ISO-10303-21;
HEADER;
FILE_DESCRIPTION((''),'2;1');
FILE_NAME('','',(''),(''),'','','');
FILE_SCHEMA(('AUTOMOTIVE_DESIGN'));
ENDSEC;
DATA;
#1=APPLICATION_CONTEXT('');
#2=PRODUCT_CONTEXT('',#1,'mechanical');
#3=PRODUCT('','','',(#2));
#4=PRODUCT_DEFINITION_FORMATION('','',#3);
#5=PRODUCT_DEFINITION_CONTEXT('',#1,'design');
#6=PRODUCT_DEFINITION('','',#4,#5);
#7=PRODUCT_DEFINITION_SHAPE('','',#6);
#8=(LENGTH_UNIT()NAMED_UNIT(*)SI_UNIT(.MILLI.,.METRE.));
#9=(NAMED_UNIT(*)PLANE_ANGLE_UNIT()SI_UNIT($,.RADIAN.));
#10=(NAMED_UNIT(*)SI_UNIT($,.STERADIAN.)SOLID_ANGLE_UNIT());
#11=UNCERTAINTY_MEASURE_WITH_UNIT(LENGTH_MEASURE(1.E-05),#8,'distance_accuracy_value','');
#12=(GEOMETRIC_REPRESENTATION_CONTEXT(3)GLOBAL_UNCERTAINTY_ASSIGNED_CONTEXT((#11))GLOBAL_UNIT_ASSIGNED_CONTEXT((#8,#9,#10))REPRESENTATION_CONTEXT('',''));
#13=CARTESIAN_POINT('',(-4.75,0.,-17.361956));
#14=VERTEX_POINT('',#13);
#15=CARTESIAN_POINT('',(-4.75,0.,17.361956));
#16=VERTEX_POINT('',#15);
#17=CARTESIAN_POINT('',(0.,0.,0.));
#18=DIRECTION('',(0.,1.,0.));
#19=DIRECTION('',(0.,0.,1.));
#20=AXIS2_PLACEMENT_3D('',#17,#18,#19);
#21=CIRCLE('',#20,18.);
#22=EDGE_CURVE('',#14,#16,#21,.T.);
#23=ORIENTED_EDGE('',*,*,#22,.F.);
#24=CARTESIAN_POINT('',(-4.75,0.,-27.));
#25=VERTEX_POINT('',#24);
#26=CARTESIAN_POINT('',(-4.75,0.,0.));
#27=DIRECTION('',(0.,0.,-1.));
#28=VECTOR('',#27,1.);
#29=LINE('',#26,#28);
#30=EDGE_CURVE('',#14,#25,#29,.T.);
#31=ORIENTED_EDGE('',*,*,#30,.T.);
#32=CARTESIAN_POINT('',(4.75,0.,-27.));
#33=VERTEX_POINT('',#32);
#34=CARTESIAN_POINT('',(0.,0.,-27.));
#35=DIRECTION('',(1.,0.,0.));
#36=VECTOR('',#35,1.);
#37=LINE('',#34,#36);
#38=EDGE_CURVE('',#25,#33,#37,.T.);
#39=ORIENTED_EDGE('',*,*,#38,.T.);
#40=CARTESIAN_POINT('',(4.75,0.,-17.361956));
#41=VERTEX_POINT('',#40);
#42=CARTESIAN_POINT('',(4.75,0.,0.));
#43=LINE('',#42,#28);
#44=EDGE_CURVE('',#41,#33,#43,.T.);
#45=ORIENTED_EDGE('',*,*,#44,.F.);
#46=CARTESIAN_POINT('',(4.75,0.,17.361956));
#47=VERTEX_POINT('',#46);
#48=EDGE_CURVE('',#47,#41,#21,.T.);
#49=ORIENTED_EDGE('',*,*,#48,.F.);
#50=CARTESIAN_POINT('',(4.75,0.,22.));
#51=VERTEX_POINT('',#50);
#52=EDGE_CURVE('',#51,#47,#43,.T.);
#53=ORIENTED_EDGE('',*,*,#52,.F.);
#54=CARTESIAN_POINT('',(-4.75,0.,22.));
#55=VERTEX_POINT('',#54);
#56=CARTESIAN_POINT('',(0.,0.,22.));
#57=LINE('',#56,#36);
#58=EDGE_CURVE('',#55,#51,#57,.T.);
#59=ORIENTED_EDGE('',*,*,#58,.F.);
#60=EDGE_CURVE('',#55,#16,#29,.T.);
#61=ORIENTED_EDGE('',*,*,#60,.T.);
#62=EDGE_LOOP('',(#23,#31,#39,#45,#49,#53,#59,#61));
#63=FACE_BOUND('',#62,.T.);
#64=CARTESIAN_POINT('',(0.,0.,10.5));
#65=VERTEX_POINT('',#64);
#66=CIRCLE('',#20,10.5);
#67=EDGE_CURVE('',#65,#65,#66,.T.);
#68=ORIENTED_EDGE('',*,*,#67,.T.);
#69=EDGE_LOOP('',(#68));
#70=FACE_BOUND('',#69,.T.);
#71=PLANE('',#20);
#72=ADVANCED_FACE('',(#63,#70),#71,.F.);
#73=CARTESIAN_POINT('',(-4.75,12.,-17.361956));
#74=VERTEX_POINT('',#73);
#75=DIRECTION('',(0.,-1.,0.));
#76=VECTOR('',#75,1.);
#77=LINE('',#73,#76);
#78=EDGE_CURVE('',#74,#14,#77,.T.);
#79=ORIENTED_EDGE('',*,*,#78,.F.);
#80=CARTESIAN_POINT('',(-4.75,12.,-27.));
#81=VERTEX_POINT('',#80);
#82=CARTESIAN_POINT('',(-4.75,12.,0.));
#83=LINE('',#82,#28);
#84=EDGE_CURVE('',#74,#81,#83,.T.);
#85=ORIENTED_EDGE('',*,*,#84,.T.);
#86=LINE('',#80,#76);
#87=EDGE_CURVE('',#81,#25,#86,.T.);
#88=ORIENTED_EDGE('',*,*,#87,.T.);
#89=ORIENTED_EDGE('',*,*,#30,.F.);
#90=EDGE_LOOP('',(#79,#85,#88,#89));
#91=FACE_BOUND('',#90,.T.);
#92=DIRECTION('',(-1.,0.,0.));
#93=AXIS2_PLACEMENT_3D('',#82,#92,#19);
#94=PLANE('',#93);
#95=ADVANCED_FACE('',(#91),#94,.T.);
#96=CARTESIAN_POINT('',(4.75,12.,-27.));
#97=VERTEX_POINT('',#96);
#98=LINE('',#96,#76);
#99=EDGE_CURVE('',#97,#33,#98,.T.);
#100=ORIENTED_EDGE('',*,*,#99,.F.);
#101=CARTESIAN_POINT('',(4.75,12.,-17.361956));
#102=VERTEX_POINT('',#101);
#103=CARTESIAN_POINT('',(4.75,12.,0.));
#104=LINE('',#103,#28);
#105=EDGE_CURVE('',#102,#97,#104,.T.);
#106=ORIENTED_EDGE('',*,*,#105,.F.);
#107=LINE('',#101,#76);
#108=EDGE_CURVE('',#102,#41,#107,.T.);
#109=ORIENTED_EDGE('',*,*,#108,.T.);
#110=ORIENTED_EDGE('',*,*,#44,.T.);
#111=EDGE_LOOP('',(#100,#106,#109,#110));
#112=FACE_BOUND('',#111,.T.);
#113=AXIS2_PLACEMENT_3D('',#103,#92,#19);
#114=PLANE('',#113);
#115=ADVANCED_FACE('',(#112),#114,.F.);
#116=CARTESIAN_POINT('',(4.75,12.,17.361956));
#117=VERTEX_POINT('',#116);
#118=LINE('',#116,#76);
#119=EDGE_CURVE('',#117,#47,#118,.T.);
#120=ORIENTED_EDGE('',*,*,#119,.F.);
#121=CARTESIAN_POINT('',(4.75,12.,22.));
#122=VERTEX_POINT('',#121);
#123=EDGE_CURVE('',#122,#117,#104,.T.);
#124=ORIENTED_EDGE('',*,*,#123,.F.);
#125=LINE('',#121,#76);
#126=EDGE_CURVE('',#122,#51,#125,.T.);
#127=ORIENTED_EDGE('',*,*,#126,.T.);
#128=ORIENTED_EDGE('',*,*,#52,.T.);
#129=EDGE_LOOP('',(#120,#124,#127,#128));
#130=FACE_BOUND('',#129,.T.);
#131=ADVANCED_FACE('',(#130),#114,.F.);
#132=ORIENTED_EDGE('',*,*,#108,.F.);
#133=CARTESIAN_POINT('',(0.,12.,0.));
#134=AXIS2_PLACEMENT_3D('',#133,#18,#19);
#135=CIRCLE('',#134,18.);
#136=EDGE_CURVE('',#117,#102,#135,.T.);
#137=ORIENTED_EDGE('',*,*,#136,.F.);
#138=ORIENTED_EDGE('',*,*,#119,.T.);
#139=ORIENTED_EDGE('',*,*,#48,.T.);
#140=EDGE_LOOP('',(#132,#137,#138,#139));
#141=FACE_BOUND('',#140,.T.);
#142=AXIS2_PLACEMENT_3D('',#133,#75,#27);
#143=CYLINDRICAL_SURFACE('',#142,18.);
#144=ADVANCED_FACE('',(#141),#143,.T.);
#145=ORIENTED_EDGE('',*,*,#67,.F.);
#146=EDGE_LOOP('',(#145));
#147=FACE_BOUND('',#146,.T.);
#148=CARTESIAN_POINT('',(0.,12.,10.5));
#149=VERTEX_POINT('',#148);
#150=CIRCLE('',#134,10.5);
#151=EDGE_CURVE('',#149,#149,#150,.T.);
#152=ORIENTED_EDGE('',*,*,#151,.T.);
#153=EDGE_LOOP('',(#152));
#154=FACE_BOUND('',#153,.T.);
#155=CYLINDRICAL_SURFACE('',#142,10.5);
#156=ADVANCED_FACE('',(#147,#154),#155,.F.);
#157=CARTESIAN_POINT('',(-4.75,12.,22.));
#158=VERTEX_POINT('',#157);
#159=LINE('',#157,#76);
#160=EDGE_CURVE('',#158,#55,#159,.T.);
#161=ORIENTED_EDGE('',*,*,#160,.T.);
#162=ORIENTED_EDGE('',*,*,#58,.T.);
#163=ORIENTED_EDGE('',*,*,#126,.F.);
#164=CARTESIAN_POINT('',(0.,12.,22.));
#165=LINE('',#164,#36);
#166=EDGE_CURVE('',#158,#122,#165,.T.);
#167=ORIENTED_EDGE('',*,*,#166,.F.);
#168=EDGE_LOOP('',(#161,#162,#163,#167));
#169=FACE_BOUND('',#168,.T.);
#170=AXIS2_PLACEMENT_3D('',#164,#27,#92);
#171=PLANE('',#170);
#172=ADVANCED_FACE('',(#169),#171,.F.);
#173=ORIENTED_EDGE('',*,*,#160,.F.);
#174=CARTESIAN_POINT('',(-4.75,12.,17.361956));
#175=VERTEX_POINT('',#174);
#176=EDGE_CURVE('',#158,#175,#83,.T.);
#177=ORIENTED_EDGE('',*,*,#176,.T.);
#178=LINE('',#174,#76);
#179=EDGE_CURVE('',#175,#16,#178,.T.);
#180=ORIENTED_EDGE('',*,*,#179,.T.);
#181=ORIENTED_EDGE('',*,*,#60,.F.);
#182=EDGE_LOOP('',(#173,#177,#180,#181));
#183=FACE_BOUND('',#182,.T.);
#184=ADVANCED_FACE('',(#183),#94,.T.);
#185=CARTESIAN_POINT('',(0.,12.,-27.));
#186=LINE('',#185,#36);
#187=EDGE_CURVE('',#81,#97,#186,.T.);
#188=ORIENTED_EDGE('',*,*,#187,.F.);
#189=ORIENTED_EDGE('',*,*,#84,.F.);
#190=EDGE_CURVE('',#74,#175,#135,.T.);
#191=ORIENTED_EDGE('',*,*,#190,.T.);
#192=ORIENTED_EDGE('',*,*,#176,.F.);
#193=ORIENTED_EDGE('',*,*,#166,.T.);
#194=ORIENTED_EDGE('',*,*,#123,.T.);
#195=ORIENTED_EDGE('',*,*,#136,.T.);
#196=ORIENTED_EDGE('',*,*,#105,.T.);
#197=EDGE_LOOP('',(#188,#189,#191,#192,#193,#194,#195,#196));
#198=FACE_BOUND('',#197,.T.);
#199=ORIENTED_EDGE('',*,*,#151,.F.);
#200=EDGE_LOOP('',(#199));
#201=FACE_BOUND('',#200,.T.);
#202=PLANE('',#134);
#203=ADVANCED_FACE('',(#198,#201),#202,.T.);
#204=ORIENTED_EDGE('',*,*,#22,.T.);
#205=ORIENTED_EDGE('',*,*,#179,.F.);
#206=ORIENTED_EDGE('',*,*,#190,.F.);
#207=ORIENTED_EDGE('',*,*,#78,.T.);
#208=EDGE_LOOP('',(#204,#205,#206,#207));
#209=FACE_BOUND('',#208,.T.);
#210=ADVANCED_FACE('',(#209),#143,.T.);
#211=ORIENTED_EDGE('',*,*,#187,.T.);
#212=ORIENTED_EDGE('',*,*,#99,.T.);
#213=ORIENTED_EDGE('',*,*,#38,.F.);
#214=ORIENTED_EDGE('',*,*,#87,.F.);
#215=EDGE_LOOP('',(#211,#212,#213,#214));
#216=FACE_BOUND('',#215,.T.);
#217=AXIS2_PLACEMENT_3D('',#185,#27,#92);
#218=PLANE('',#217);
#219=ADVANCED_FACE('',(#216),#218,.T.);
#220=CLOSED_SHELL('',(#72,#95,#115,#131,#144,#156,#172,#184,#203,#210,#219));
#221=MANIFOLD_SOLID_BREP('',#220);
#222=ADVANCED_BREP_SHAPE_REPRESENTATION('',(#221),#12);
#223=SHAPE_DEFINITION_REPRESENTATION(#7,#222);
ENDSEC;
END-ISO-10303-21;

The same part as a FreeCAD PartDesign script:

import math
import FreeCAD as App
import Part
import Sketcher

V = App.Vector

doc = App.newDocument("Part")
body = doc.addObject("PartDesign::Body", "Body")

# Sketch on XZ plane
sketch1 = body.newObject("Sketcher::SketchObject", "Sketch")
sketch1.AttachmentSupport = (doc.getObject("XZ_Plane"), [""])
sketch1.MapMode = "FlatFace"
sketch1.addGeometry([
    Part.LineSegment(V(-4.75, 17.361956, 0), V(-4.75, 22, 0)),  # 0
    Part.LineSegment(V(-4.75, 22, 0), V(4.75, 22, 0)),  # 1
    Part.LineSegment(V(4.75, 22, 0), V(4.75, 17.361956, 0)),  # 2
    Part.ArcOfCircle(Part.Circle(V(0, 0, 0), V(0, 0, 1), 18), math.radians(-74.699059), math.radians(74.699059)),  # 3
    Part.LineSegment(V(4.75, -17.361956, 0), V(4.75, -27, 0)),  # 4
    Part.LineSegment(V(4.75, -27, 0), V(-4.75, -27, 0)),  # 5
    Part.LineSegment(V(-4.75, -27, 0), V(-4.75, -17.361956, 0)),  # 6
    Part.ArcOfCircle(Part.Circle(V(0, 0, 0), V(0, 0, 1), 18), math.radians(105.300941), math.radians(254.699059)),  # 7
    Part.Circle(V(0, 0, 0), V(0, 0, 1), 10.5),  # 8
], False)
sketch1.addConstraint([
    Sketcher.Constraint("Coincident", 0, 2, 1, 1),
    Sketcher.Constraint("Coincident", 1, 2, 2, 1),
    Sketcher.Constraint("Coincident", 2, 2, 3, 2),
    Sketcher.Constraint("Coincident", 3, 1, 4, 1),
    Sketcher.Constraint("Coincident", 4, 2, 5, 1),
    Sketcher.Constraint("Coincident", 5, 2, 6, 1),
    Sketcher.Constraint("Coincident", 6, 2, 7, 2),
    Sketcher.Constraint("Coincident", 7, 1, 0, 1),
    Sketcher.Constraint("Vertical", 0),
    Sketcher.Constraint("Horizontal", 1),
    Sketcher.Constraint("Vertical", 2),
    Sketcher.Constraint("Vertical", 4),
    Sketcher.Constraint("Horizontal", 5),
    Sketcher.Constraint("Vertical", 6),
    Sketcher.Constraint("Coincident", 3, 3, -1, 1),
    Sketcher.Constraint("Coincident", 7, 3, -1, 1),
    Sketcher.Constraint("Coincident", 8, 3, -1, 1),
    Sketcher.Constraint("Equal", 3, 7),
    Sketcher.Constraint("Horizontal", 3, 1, 6, 2),
    Sketcher.Constraint("Horizontal", 2, 2, 7, 1),
    Sketcher.Constraint("Vertical", 2, 2, 3, 1),
    Sketcher.Constraint("Diameter", 8, 21.0),
    Sketcher.Constraint("Radius", 3, 18.0),
    Sketcher.Constraint("DistanceX", 1, 1, 1, 2, 9.5),
    Sketcher.Constraint("DistanceY", -1, 1, 0, 2, 22.0),
    Sketcher.Constraint("DistanceY", 4, 2, -1, 1, 27.0),
])
pad1 = body.newObject("PartDesign::Pad", "Pad")
pad1.Profile = sketch1
pad1.Length = 12
pad1.Reversed = True

doc.recompute()
